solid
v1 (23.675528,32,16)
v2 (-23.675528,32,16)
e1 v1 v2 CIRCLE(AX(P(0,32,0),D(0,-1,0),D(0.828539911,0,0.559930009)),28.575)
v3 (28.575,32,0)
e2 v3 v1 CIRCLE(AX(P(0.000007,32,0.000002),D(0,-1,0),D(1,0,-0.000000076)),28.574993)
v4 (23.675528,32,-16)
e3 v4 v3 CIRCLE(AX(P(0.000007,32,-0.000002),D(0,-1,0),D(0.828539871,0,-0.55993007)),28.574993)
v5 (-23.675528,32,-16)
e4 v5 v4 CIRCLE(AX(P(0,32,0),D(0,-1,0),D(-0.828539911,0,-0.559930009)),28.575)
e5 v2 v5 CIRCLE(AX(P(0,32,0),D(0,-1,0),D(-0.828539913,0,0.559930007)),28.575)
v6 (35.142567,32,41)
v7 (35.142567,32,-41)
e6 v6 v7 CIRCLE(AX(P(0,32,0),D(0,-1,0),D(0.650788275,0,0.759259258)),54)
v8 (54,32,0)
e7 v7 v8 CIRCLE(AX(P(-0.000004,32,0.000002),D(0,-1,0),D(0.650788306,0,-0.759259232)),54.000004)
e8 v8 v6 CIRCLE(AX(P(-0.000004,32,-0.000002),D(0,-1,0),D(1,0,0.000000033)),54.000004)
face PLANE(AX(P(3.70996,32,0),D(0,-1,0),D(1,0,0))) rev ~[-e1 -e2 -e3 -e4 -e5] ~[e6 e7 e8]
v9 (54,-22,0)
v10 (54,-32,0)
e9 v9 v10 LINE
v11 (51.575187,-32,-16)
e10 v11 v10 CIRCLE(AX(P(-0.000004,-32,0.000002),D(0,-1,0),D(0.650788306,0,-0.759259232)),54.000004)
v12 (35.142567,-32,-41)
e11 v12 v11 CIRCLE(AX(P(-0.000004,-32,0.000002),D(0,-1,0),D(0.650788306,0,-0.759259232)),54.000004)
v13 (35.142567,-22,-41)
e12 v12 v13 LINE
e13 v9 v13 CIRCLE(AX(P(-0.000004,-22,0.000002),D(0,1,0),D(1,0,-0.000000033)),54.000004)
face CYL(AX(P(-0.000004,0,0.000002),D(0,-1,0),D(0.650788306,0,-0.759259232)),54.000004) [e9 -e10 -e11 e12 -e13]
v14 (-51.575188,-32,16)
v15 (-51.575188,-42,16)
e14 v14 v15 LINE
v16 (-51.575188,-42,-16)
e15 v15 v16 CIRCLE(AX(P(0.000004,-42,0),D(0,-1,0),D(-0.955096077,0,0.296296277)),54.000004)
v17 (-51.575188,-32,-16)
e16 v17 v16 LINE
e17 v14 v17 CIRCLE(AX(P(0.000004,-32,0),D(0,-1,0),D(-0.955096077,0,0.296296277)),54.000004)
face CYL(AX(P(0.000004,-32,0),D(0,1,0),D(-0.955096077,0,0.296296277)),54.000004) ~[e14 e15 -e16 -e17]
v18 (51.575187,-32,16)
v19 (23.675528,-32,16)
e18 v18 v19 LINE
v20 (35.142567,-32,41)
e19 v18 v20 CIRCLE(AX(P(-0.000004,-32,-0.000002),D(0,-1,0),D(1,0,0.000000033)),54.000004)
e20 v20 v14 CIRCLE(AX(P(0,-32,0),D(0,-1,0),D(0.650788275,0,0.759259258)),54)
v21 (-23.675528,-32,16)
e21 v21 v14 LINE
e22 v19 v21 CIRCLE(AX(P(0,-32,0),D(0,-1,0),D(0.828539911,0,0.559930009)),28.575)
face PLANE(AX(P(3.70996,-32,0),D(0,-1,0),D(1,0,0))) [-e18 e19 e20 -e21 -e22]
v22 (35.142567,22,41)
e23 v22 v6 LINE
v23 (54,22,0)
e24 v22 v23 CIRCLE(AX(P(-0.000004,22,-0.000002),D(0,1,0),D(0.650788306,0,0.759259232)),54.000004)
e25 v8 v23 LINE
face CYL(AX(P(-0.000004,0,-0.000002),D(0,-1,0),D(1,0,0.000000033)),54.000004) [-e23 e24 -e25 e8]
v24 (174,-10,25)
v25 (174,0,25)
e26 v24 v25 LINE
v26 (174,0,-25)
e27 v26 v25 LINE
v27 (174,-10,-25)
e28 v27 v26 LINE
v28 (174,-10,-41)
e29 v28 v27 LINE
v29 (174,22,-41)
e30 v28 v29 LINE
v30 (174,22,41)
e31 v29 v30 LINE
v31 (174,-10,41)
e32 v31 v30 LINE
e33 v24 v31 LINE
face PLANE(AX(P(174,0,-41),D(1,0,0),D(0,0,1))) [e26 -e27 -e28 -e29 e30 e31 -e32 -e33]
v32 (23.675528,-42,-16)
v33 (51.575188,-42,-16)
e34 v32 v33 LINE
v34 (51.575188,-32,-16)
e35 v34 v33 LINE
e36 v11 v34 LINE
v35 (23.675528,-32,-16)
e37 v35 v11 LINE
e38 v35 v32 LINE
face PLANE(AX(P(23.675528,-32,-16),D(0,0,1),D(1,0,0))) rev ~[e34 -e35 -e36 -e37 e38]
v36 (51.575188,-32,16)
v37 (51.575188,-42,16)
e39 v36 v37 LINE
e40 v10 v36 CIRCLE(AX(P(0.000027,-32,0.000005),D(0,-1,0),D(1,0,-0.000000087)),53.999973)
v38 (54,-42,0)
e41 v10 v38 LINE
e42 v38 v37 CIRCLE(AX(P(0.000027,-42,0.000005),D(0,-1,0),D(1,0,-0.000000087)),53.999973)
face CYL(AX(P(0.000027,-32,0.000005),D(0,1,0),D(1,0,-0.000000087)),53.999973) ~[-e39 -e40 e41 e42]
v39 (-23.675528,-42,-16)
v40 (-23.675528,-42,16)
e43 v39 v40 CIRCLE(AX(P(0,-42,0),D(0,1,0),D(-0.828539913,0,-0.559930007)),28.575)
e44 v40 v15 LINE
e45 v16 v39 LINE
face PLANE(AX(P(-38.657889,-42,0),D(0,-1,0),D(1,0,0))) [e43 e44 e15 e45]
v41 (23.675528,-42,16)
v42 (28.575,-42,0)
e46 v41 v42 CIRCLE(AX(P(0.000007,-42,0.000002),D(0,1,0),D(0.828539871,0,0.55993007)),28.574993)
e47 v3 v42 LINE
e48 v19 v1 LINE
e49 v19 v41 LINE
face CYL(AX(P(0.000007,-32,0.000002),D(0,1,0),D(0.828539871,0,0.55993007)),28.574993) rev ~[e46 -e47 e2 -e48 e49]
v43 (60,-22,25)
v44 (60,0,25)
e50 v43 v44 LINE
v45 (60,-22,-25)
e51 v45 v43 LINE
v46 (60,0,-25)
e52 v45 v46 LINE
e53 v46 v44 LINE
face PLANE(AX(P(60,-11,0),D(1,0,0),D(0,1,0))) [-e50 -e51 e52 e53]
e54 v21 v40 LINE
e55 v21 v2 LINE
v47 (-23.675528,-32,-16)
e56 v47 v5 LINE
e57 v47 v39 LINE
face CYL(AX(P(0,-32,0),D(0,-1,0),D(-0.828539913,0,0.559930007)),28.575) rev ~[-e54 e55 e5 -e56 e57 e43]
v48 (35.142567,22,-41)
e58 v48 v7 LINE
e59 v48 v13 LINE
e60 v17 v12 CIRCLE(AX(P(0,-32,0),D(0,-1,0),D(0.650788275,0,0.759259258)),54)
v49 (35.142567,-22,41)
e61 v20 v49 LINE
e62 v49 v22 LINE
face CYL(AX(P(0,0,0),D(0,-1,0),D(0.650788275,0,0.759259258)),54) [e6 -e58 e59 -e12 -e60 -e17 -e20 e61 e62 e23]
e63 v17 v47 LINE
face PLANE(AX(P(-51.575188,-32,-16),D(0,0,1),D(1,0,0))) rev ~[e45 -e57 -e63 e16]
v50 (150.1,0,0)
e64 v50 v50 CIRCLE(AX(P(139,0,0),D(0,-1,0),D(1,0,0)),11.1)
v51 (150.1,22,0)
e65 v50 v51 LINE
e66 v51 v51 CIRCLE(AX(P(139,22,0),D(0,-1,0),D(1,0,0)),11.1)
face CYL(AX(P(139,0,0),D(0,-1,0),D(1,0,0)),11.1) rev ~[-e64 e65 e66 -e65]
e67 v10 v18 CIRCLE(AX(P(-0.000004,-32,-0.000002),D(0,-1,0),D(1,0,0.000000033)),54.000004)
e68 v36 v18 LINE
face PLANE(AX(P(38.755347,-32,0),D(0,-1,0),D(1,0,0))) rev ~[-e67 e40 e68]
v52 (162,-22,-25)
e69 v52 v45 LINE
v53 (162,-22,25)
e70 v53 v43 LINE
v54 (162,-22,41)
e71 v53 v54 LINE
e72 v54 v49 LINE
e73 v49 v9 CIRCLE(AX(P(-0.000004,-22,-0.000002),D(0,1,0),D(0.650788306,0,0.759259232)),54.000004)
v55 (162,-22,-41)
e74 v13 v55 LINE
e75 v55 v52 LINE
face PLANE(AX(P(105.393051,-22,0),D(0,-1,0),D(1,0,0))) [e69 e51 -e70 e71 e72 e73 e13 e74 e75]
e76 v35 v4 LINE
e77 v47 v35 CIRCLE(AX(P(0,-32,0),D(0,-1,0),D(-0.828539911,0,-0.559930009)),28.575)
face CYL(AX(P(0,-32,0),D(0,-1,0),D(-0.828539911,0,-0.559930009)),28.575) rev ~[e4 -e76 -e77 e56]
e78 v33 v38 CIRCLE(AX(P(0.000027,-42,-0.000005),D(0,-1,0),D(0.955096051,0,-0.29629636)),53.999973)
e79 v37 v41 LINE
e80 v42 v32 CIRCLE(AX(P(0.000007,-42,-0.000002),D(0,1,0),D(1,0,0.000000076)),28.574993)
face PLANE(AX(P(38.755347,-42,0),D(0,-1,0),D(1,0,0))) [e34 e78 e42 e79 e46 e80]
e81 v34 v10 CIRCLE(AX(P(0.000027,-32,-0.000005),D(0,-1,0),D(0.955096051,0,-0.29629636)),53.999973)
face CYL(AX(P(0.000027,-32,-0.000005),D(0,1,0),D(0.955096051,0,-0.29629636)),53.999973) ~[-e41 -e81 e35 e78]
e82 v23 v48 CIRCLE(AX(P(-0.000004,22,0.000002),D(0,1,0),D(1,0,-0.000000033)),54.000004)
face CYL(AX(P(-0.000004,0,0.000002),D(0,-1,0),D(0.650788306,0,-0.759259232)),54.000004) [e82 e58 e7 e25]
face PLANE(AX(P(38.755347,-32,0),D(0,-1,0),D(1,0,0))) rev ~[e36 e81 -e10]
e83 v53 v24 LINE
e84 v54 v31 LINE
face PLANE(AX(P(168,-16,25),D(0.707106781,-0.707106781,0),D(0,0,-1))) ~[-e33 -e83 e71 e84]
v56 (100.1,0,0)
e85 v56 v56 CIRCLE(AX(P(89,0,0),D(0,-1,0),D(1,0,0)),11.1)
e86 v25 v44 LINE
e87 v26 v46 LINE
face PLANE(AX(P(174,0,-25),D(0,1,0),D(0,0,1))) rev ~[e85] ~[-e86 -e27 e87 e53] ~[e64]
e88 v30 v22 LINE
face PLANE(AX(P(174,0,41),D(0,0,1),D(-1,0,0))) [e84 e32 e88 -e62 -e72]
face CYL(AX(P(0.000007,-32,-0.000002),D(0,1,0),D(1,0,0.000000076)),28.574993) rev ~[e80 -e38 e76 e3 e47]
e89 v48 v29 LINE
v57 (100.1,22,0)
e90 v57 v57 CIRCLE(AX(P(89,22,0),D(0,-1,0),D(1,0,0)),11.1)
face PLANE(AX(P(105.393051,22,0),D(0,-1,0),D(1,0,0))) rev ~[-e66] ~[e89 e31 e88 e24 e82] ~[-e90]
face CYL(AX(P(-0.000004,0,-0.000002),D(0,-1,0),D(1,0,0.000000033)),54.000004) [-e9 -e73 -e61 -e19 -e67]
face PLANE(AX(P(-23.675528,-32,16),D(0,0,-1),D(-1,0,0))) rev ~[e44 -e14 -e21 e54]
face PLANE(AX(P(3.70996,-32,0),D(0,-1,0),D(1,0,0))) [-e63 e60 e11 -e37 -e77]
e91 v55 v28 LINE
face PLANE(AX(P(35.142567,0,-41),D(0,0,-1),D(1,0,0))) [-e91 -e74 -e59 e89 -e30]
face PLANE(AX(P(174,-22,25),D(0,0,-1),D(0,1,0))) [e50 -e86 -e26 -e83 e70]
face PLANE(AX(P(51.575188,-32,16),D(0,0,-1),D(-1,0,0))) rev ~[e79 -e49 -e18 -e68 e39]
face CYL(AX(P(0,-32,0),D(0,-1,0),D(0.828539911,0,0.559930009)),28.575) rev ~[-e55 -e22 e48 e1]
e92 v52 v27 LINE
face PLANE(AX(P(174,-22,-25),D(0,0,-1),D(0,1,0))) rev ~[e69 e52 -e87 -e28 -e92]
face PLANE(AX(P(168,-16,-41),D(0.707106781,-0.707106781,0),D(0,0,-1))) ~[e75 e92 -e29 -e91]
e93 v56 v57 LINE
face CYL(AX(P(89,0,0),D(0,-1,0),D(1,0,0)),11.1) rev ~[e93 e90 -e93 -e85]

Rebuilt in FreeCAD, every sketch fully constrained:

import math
import FreeCAD as App
import Part
import Sketcher


def edges_at(feature, points):
    """Names of the edges that pass closest to the given points."""
    edges = feature.Shape.Edges
    near = lambda p: min(range(len(edges)), key=lambda i: edges[i].distToShape(Part.Vertex(*p))[0])
    return sorted({f"Edge{near(p) + 1}" for p in points})

doc = App.newDocument("Part")
params = doc.addObject("Spreadsheet::Sheet", "Params")
for row, (alias, value) in enumerate([
    ("sketch1_height", "82 mm"),
    ("pad1_length", "44 mm"),
    ("sketch2_radius", "54 mm"),
    ("pad2_length", "64 mm"),
    ("sketch3_width", "22 mm"),
    ("sketch3_height", "50 mm"),
    ("pocket1_length", "114 mm"),
    ("sketch4_diameter", "22.2 mm"),
    ("pad3_length", "10 mm"),
    ("chamfer_size", "12 mm"),
    ("chamfer_size2", "12 mm"),
], start=1):
    params.set(f"A{row}", alias)
    params.set(f"B{row}", "=" + value)
    params.setAlias(f"B{row}", alias)

body = doc.addObject("PartDesign::Body", "Body")

sketch1 = body.newObject("Sketcher::SketchObject", "Sketch")
sketch1.AttachmentSupport = (doc.getObject("XZ_Plane"), [""])
sketch1.MapMode = "FlatFace"
sketch1.addGeometry([
    Part.ArcOfCircle(Part.Circle(App.Vector(0, 0, 0), App.Vector(0, 0, 1), 54), math.radians(0), math.radians(49)),
    Part.ArcOfCircle(Part.Circle(App.Vector(0, 0, 0), App.Vector(0, 0, 1), 54), math.radians(-49), math.radians(0)),
    Part.LineSegment(App.Vector(35, -41, 0), App.Vector(174, -41, 0)),
    Part.LineSegment(App.Vector(174, -41, 0), App.Vector(174, 41, 0)),
    Part.LineSegment(App.Vector(174, 41, 0), App.Vector(35, 41, 0)),
], False)
sketch1.addConstraint([
    Sketcher.Constraint("Tangent", 0, 1, 1, 2),
    Sketcher.Constraint("Coincident", 1, 1, 2, 1),
    Sketcher.Constraint("Coincident", 2, 2, 3, 1),
    Sketcher.Constraint("Coincident", 3, 2, 4, 1),
    Sketcher.Constraint("Coincident", 4, 2, 0, 2),
    Sketcher.Constraint("Horizontal", 2),
    Sketcher.Constraint("Vertical", 3),
    Sketcher.Constraint("Horizontal", 4),
    Sketcher.Constraint("Coincident", 0, 3, -1, 1),
    Sketcher.Constraint("Equal", 0, 1),
    Sketcher.Constraint("PointOnObject", 0, 1, -1),
    Sketcher.Constraint("Vertical", 1, 1, 4, 2),
    Sketcher.Constraint("DistanceY", 3, 1, 3, 2, 82.0),
    Sketcher.Constraint("DistanceX", -1, 1, 0, 1, 54.0),
    Sketcher.Constraint("DistanceX", -1, 1, 2, 2, 174.0),
])
sketch1.setExpression("Constraints[12]", "Params.sketch1_height")
pad1 = body.newObject("PartDesign::Pad", "Pad")
pad1.Profile = sketch1
pad1.setExpression("Length", "Params.pad1_length")
pad1.Midplane = True

sketch2 = body.newObject("Sketcher::SketchObject", "Sketch001")
sketch2.AttachmentSupport = (doc.getObject("XZ_Plane"), [""])
sketch2.MapMode = "FlatFace"
sketch2.addGeometry([
    Part.ArcOfCircle(Part.Circle(App.Vector(0, 0, 0), App.Vector(0, 0, 1), 54), math.radians(-49), math.radians(0)),
    Part.ArcOfCircle(Part.Circle(App.Vector(0, 0, 0), App.Vector(0, 0, 1), 54), math.radians(0), math.radians(49)),
    Part.ArcOfCircle(Part.Circle(App.Vector(0, 0, 0), App.Vector(0, 0, 1), 54), math.radians(49), math.radians(311)),
], False)
sketch2.addConstraint([
    Sketcher.Constraint("Tangent", 0, 2, 1, 1),
    Sketcher.Constraint("Tangent", 1, 2, 2, 1),
    Sketcher.Constraint("Tangent", 2, 2, 0, 1),
    Sketcher.Constraint("Coincident", 0, 3, -1, 1),
    Sketcher.Constraint("PointOnObject", 0, 2, -1),
    Sketcher.Constraint("Vertical", 1, 2, 2, 2),
    Sketcher.Constraint("Radius", 2, 54.0),
    Sketcher.Constraint("DistanceY", -1, 1, 1, 2, 41.0),
])
sketch2.setExpression("Constraints[6]", "Params.sketch2_radius")
pad2 = body.newObject("PartDesign::Pad", "Pad001")
pad2.Profile = sketch2
pad2.setExpression("Length", "Params.pad2_length")
pad2.Midplane = True

sketch3 = body.newObject("Sketcher::SketchObject", "Sketch002")
sketch3.AttachmentSupport = (doc.getObject("YZ_Plane"), [""])
sketch3.MapMode = "FlatFace"
sketch3.AttachmentOffset = App.Placement(App.Vector(0, 0, 174), App.Rotation())
sketch3.addGeometry([
    Part.LineSegment(App.Vector(-22, 25, 0), App.Vector(-22, -25, 0)),
    Part.LineSegment(App.Vector(-22, -25, 0), App.Vector(0, -25, 0)),
    Part.LineSegment(App.Vector(0, -25, 0), App.Vector(0, 25, 0)),
    Part.LineSegment(App.Vector(0, 25, 0), App.Vector(-22, 25, 0)),
], False)
sketch3.addConstraint([
    Sketcher.Constraint("Coincident", 0, 2, 1, 1),
    Sketcher.Constraint("Coincident", 1, 2, 2, 1),
    Sketcher.Constraint("Coincident", 2, 2, 3, 1),
    Sketcher.Constraint("Coincident", 3, 2, 0, 1),
    Sketcher.Constraint("Vertical", 0),
    Sketcher.Constraint("Horizontal", 1),
    Sketcher.Constraint("Vertical", 2),
    Sketcher.Constraint("Horizontal", 3),
    Sketcher.Constraint("Symmetric", 1, 2, 2, 2, -1, 1),
    Sketcher.Constraint("DistanceX", 1, 1, 1, 2, 22.0),
    Sketcher.Constraint("DistanceY", 0, 2, 0, 1, 50.0),
])
sketch3.setExpression("Constraints[9]", "Params.sketch3_width")
sketch3.setExpression("Constraints[10]", "Params.sketch3_height")
pocket1 = body.newObject("PartDesign::Pocket", "Pocket")
pocket1.Profile = sketch3
pocket1.setExpression("Length", "Params.pocket1_length")

sketch4 = body.newObject("Sketcher::SketchObject", "Sketch003")
sketch4.AttachmentSupport = (doc.getObject("XZ_Plane"), [""])
sketch4.MapMode = "FlatFace"
sketch4.addGeometry([
    Part.Circle(App.Vector(139, 0, 0), App.Vector(0, 0, 1), 11),
    Part.Circle(App.Vector(89, 0, 0), App.Vector(0, 0, 1), 11),
], False)
sketch4.addConstraint([
    Sketcher.Constraint("Equal", 0, 1),
    Sketcher.Constraint("PointOnObject", 0, 3, -1),
    Sketcher.Constraint("PointOnObject", 1, 3, -1),
    Sketcher.Constraint("Diameter", 0, 22.2),
    Sketcher.Constraint("DistanceX", -1, 1, 0, 3, 139.0),
    Sketcher.Constraint("DistanceX", -1, 1, 1, 3, 89.0),
])
sketch4.setExpression("Constraints[3]", "Params.sketch4_diameter")
pocket2 = body.newObject("PartDesign::Pocket", "Pocket001")
pocket2.Profile = sketch4
pocket2.Type = "ThroughAll"

sketch5 = body.newObject("Sketcher::SketchObject", "Sketch004")
sketch5.AttachmentSupport = (doc.getObject("XZ_Plane"), [""])
sketch5.MapMode = "FlatFace"
sketch5.AttachmentOffset = App.Placement(App.Vector(0, 0, 32), App.Rotation())
sketch5.addGeometry([
    Part.ArcOfCircle(Part.Circle(App.Vector(0, 0, 0), App.Vector(0, 0, 1), 28.575), math.radians(145.949043), math.radians(214.050957)),
    Part.LineSegment(App.Vector(-23.675528, 16, 0), App.Vector(-51.575188, 16, 0)),
    Part.ArcOfCircle(Part.Circle(App.Vector(0.000004, 0, 0), App.Vector(0, 0, 1), 54.000004), math.radians(162.764716), math.radians(197.235284)),
    Part.LineSegment(App.Vector(-51.575188, -16, 0), App.Vector(-23.675528, -16, 0)),
    Part.ArcOfCircle(Part.Circle(App.Vector(0.000007, 0.000002, 0), App.Vector(0, 0, 1), 28.574993), math.radians(-0.000004), math.radians(34.050962)),
    Part.ArcOfCircle(Part.Circle(App.Vector(0.000007, -0.000002, 0), App.Vector(0, 0, 1), 28.574993), math.radians(-34.050962), math.radians(0.000004)),
    Part.LineSegment(App.Vector(23.675528, -16, 0), App.Vector(51.575188, -16, 0)),
    Part.ArcOfCircle(Part.Circle(App.Vector(0.000027, -0.000005, 0), App.Vector(0, 0, 1), 53.999973), math.radians(-17.235289), math.radians(0.000005)),
    Part.ArcOfCircle(Part.Circle(App.Vector(0.000027, 0.000005, 0), App.Vector(0, 0, 1), 53.999973), math.radians(-0.000005), math.radians(17.235289)),
    Part.LineSegment(App.Vector(51.575188, 16, 0), App.Vector(23.675528, 16, 0)),
], False)
sketch5.addConstraint([
    Sketcher.Constraint("Coincident", 0, 1, 1, 1),
    Sketcher.Constraint("Coincident", 1, 2, 2, 1),
    Sketcher.Constraint("Coincident", 2, 2, 3, 1),
    Sketcher.Constraint("Coincident", 3, 2, 0, 2),
    Sketcher.Constraint("Coincident", 4, 1, 5, 2),
    Sketcher.Constraint("Coincident", 5, 1, 6, 1),
    Sketcher.Constraint("Coincident", 6, 2, 7, 1),
    Sketcher.Constraint("Coincident", 7, 2, 8, 1),
    Sketcher.Constraint("Coincident", 8, 2, 9, 1),
    Sketcher.Constraint("Coincident", 9, 2, 4, 2),
    Sketcher.Constraint("Horizontal", 1),
    Sketcher.Constraint("Horizontal", 3),
    Sketcher.Constraint("Horizontal", 6),
    Sketcher.Constraint("Horizontal", 9),
    Sketcher.Constraint("Coincident", 0, 3, -1, 1),
    Sketcher.Constraint("Coincident", 2, 3, -1, 1),
    Sketcher.Constraint("Coincident", 4, 3, -1, 1),
    Sketcher.Constraint("Coincident", 5, 3, -1, 1),
    Sketcher.Constraint("Coincident", 8, 3, 7, 3),
    Sketcher.Constraint("PointOnObject", 4, 1, -1),
    Sketcher.Constraint("PointOnObject", 7, 2, -1),
    Sketcher.Constraint("DistanceY", -1, 1, 0, 1, 16.0),
    Sketcher.Constraint("DistanceY", 2, 2, -1, 1, 16.0),
    Sketcher.Constraint("DistanceY", 5, 1, -1, 1, 16.0),
    Sketcher.Constraint("DistanceX", -1, 1, 7, 2, 54.0),
    Sketcher.Constraint("DistanceY", -1, 1, 8, 2, 16.0),
    Sketcher.Constraint("Radius", 0, 28.575),
    Sketcher.Constraint("DistanceX", -1, 1, 4, 1, 28.575),
    Sketcher.Constraint("Radius", 2, 54.000004),
    Sketcher.Constraint("Radius", 7, 53.999973),
    Sketcher.Constraint("DistanceX", 6, 1, 6, 2, 27.89966),
])
pad3 = body.newObject("PartDesign::Pad", "Pad002")
pad3.Profile = sketch5
pad3.setExpression("Length", "Params.pad3_length")

sketch6 = body.newObject("Sketcher::SketchObject", "Sketch005")
sketch6.AttachmentSupport = (doc.getObject("XZ_Plane"), [""])
sketch6.MapMode = "FlatFace"
sketch6.AttachmentOffset = App.Placement(App.Vector(0, 0, 32), App.Rotation())
sketch6.addGeometry([
    Part.ArcOfCircle(Part.Circle(App.Vector(0, 0, 0), App.Vector(0, 0, 1), 29), math.radians(-34), math.radians(0)),
    Part.ArcOfCircle(Part.Circle(App.Vector(0, 0, 0), App.Vector(0, 0, 1), 29), math.radians(0), math.radians(34)),
    Part.ArcOfCircle(Part.Circle(App.Vector(0, 0, 0), App.Vector(0, 0, 1), 29), math.radians(34), math.radians(146)),
    Part.ArcOfCircle(Part.Circle(App.Vector(0, 0, 0), App.Vector(0, 0, 1), 29), math.radians(146), math.radians(214)),
    Part.ArcOfCircle(Part.Circle(App.Vector(0, 0, 0), App.Vector(0, 0, 1), 29), math.radians(-146), math.radians(-34)),
], False)
sketch6.addConstraint([
    Sketcher.Constraint("Tangent", 0, 2, 1, 1),
    Sketcher.Constraint("Tangent", 1, 2, 2, 1),
    Sketcher.Constraint("Tangent", 2, 2, 3, 1),
    Sketcher.Constraint("Tangent", 3, 2, 4, 1),
    Sketcher.Constraint("Tangent", 4, 2, 0, 1),
    Sketcher.Constraint("Coincident", 0, 3, -1, 1),
    Sketcher.Constraint("Coincident", 2, 3, -1, 1),
    Sketcher.Constraint("PointOnObject", 0, 2, -1),
    Sketcher.Constraint("Horizontal", 1, 2, 2, 2),
    Sketcher.Constraint("Horizontal", 3, 2, 4, 2),
    Sketcher.Constraint("Vertical", 2, 2, 3, 2),
    Sketcher.Constraint("DistanceY", -1, 1, 1, 2, 16.0),
    Sketcher.Constraint("Radius", 2, 28.575),
])
pocket3 = body.newObject("PartDesign::Pocket", "Pocket002")
pocket3.Profile = sketch6
pocket3.Type = "ThroughAll"
doc.recompute()

chamfer = body.newObject("PartDesign::Chamfer", "Chamfer")
chamfer.Base = (pocket3, edges_at(pocket3, [(174, -22, -33), (174, -22, 33)]))
chamfer.ChamferType = "Two distances"
chamfer.setExpression("Size", "Params.chamfer_size")
chamfer.setExpression("Size2", "Params.chamfer_size2")

doc.recompute()
